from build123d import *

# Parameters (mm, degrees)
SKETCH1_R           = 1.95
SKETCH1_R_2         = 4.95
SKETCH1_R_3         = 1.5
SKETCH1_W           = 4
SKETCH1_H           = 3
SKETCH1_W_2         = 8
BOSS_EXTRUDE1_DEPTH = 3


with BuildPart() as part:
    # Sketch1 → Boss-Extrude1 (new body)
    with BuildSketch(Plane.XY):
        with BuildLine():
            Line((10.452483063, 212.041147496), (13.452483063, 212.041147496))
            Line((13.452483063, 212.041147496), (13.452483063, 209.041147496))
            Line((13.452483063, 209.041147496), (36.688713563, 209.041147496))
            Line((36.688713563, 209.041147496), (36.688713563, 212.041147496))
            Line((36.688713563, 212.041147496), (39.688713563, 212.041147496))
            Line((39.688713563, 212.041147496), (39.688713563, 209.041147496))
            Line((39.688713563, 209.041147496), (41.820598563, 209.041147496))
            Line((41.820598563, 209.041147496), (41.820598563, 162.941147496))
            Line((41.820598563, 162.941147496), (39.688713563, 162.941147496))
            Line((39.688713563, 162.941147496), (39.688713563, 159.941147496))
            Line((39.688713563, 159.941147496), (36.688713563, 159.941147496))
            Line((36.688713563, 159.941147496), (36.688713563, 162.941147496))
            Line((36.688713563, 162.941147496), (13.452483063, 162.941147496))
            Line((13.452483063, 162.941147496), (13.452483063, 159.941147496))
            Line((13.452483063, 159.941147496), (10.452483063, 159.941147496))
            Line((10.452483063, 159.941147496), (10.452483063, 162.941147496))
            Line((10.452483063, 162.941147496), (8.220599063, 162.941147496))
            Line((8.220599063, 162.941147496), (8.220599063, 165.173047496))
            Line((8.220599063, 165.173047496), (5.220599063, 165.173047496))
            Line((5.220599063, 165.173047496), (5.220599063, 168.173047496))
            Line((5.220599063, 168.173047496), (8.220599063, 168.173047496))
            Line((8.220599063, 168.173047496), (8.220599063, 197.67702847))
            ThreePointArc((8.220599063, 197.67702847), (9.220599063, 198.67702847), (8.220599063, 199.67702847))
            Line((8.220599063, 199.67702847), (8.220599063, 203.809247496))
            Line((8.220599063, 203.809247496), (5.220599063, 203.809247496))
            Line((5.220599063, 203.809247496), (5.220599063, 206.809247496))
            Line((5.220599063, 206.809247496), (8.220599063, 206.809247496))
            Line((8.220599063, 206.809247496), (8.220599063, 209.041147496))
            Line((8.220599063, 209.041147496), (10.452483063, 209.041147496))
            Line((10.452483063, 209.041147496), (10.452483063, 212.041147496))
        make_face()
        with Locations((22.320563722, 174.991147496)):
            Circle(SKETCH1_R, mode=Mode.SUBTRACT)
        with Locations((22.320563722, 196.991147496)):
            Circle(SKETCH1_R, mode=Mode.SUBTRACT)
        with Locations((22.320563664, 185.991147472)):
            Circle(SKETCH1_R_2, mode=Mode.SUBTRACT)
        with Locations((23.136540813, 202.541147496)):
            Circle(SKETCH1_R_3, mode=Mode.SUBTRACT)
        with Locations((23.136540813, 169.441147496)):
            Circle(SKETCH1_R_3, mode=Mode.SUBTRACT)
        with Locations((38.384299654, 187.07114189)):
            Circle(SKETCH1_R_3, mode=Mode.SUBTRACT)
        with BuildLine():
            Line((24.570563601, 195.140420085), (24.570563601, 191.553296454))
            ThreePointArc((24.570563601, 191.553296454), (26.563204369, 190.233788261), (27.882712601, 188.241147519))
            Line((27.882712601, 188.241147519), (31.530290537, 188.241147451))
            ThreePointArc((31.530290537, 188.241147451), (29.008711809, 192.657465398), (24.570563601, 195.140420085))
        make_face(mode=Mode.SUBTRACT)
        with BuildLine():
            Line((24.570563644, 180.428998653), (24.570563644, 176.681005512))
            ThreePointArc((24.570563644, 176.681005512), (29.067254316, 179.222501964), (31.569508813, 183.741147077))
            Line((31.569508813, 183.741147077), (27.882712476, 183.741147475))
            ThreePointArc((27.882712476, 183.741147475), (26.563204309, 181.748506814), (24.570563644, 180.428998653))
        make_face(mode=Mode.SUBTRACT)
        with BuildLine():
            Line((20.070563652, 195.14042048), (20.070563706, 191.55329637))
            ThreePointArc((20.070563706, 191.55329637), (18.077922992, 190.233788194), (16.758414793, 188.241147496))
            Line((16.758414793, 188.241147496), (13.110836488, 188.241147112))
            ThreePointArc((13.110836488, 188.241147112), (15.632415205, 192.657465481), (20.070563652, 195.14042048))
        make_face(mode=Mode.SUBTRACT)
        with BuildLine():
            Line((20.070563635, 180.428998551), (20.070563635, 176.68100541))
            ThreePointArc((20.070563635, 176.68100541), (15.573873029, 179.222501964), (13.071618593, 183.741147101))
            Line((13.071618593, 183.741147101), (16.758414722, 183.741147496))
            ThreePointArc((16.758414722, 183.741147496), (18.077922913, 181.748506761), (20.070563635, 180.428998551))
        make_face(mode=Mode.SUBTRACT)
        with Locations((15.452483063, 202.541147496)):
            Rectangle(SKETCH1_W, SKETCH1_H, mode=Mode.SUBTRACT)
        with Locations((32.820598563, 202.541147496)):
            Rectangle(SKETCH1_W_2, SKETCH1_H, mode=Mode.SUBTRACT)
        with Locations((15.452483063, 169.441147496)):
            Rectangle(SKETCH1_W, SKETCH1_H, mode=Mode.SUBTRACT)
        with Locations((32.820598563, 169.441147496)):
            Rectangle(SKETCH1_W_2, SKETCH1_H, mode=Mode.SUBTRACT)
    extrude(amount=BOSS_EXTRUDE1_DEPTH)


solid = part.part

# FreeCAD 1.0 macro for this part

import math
import FreeCAD as App
import Part
import Sketcher

V = App.Vector
Q = App.Units.Quantity


def add_polygon(sketch, points):
    """Adds a closed chain of lines whose ends are joined by coincident constraints."""
    first, n = sketch.GeometryCount, len(points)
    for a, b in zip(points, points[1:] + points[:1]):
        sketch.addGeometry(Part.LineSegment(App.Vector(*a, 0), App.Vector(*b, 0)), False)
    for i in range(n):
        sketch.addConstraint(Sketcher.Constraint("Coincident", first + i, 2, first + (i + 1) % n, 1))

doc = App.newDocument("Part")
body = doc.addObject("PartDesign::Body", "Body")

# Sketch on XY plane
sketch1 = body.newObject("Sketcher::SketchObject", "Sketch")
sketch1.AttachmentSupport = (doc.getObject("XY_Plane"), [""])
sketch1.MapMode = "FlatFace"
sketch1.addGeometry(Part.LineSegment(V(13.452483, 212.041147, 0), V(10.452483, 212.041147, 0)), False)  # 0
sketch1.addGeometry(Part.LineSegment(V(10.452483, 212.041147, 0), V(10.452483, 209.041147, 0)), False)  # 1
sketch1.addGeometry(Part.LineSegment(V(10.452483, 209.041147, 0), V(8.220599, 209.041147, 0)), False)  # 2
sketch1.addGeometry(Part.LineSegment(V(8.220599, 209.041147, 0), V(8.220599, 206.809247, 0)), False)  # 3
sketch1.addGeometry(Part.LineSegment(V(8.220599, 206.809247, 0), V(5.220599, 206.809247, 0)), False)  # 4
sketch1.addGeometry(Part.LineSegment(V(5.220599, 206.809247, 0), V(5.220599, 203.809247, 0)), False)  # 5
sketch1.addGeometry(Part.LineSegment(V(5.220599, 203.809247, 0), V(8.220599, 203.809247, 0)), False)  # 6
sketch1.addGeometry(Part.LineSegment(V(8.220599, 203.809247, 0), V(8.220599, 199.677028, 0)), False)  # 7
sketch1.addGeometry(Part.ArcOfCircle(Part.Circle(V(8.220599, 198.677028, 0), V(0, 0, 1), 1), math.radians(-90), math.radians(90)), False)  # 8
sketch1.addGeometry(Part.LineSegment(V(8.220599, 197.677028, 0), V(8.220599, 168.173047, 0)), False)  # 9
sketch1.addGeometry(Part.LineSegment(V(8.220599, 168.173047, 0), V(5.220599, 168.173047, 0)), False)  # 10
sketch1.addGeometry(Part.LineSegment(V(5.220599, 168.173047, 0), V(5.220599, 165.173047, 0)), False)  # 11
sketch1.addGeometry(Part.LineSegment(V(5.220599, 165.173047, 0), V(8.220599, 165.173047, 0)), False)  # 12
sketch1.addGeometry(Part.LineSegment(V(8.220599, 165.173047, 0), V(8.220599, 162.941147, 0)), False)  # 13
sketch1.addGeometry(Part.LineSegment(V(8.220599, 162.941147, 0), V(10.452483, 162.941147, 0)), False)  # 14
sketch1.addGeometry(Part.LineSegment(V(10.452483, 162.941147, 0), V(10.452483, 159.941147, 0)), False)  # 15
sketch1.addGeometry(Part.LineSegment(V(10.452483, 159.941147, 0), V(13.452483, 159.941147, 0)), False)  # 16
sketch1.addGeometry(Part.LineSegment(V(13.452483, 159.941147, 0), V(13.452483, 162.941147, 0)), False)  # 17
sketch1.addGeometry(Part.LineSegment(V(13.452483, 162.941147, 0), V(36.688714, 162.941147, 0)), False)  # 18
sketch1.addGeometry(Part.LineSegment(V(36.688714, 162.941147, 0), V(36.688714, 159.941147, 0)), False)  # 19
sketch1.addGeometry(Part.LineSegment(V(36.688714, 159.941147, 0), V(39.688714, 159.941147, 0)), False)  # 20
sketch1.addGeometry(Part.LineSegment(V(39.688714, 159.941147, 0), V(39.688714, 162.941147, 0)), False)  # 21
sketch1.addGeometry(Part.LineSegment(V(39.688714, 162.941147, 0), V(41.820599, 162.941147, 0)), False)  # 22
sketch1.addGeometry(Part.LineSegment(V(41.820599, 162.941147, 0), V(41.820599, 209.041147, 0)), False)  # 23
sketch1.addGeometry(Part.LineSegment(V(41.820599, 209.041147, 0), V(39.688714, 209.041147, 0)), False)  # 24
sketch1.addGeometry(Part.LineSegment(V(39.688714, 209.041147, 0), V(39.688714, 212.041147, 0)), False)  # 25
sketch1.addGeometry(Part.LineSegment(V(39.688714, 212.041147, 0), V(36.688714, 212.041147, 0)), False)  # 26
sketch1.addGeometry(Part.LineSegment(V(36.688714, 212.041147, 0), V(36.688714, 209.041147, 0)), False)  # 27
sketch1.addGeometry(Part.LineSegment(V(36.688714, 209.041147, 0), V(13.452483, 209.041147, 0)), False)  # 28
sketch1.addGeometry(Part.LineSegment(V(13.452483, 209.041147, 0), V(13.452483, 212.041147, 0)), False)  # 29
add_polygon(sketch1, [(28.820599, 167.941147), (28.820599, 170.941147), (36.820599, 170.941147), (36.820599, 167.941147)])  # lines 30-33
sketch1.addGeometry(Part.ArcOfCircle(Part.Circle(V(22.320564, 185.991147, 0), V(0, 0, 1), 6), math.radians(-67.975687), math.radians(-22.024313)), False)  # 34
sketch1.addGeometry(Part.LineSegment(V(27.882712, 183.741147, 0), V(31.569509, 183.741147, 0)), False)  # 35
sketch1.addGeometry(Part.ArcOfCircle(Part.Circle(V(22.320564, 185.910713, 0), V(0, 0, 1), 9.5), math.radians(-76.299767), math.radians(-13.201442)), False)  # 36
sketch1.addGeometry(Part.LineSegment(V(24.570564, 176.681006, 0), V(24.570564, 180.428999, 0)), False)  # 37
sketch1.addGeometry(Part.Circle(V(23.136541, 169.441147, 0), V(0, 0, 1), 1.5), False)  # 38
sketch1.addGeometry(Part.Circle(V(22.320564, 174.991147, 0), V(0, 0, 1), 1.95), False)  # 39
add_polygon(sketch1, [(13.452483, 167.941147), (13.452483, 170.941147), (17.452483, 170.941147), (17.452483, 167.941147)])  # lines 40-43
sketch1.addGeometry(Part.Circle(V(22.320564, 185.991147, 0), V(0, 0, 1), 4.95), False)  # 44
sketch1.addGeometry(Part.LineSegment(V(20.070564, 180.428999, 0), V(20.070564, 176.681005, 0)), False)  # 45
sketch1.addGeometry(Part.ArcOfCircle(Part.Circle(V(22.320564, 185.910713, 0), V(0, 0, 1), 9.5), math.radians(-166.798559), math.radians(-103.700234)), False)  # 46
sketch1.addGeometry(Part.LineSegment(V(13.071619, 183.741147, 0), V(16.758415, 183.741147, 0)), False)  # 47
sketch1.addGeometry(Part.ArcOfCircle(Part.Circle(V(22.320564, 185.991147, 0), V(0, 0, 1), 6), math.radians(-157.975688), math.radians(-112.024313)), False)  # 48
sketch1.addGeometry(Part.Circle(V(38.3843, 187.071142, 0), V(0, 0, 1), 1.5), False)  # 49
sketch1.addGeometry(Part.ArcOfCircle(Part.Circle(V(22.320564, 185.910713, 0), V(0, 0, 1), 9.5), math.radians(14.200089), math.radians(76.299767)), False)  # 50
sketch1.addGeometry(Part.LineSegment(V(31.530291, 188.241147, 0), V(27.882713, 188.241148, 0)), False)  # 51
sketch1.addGeometry(Part.ArcOfCircle(Part.Circle(V(22.320564, 185.991147, 0), V(0, 0, 1), 6), math.radians(22.024313), math.radians(67.975688)), False)  # 52
sketch1.addGeometry(Part.LineSegment(V(24.570564, 191.553296, 0), V(24.570564, 195.14042, 0)), False)  # 53
add_polygon(sketch1, [(28.820599, 201.041147), (28.820599, 204.041147), (36.820599, 204.041147), (36.820599, 201.041147)])  # lines 54-57
sketch1.addGeometry(Part.LineSegment(V(20.070564, 195.14042, 0), V(20.070564, 191.553296, 0)), False)  # 58
sketch1.addGeometry(Part.ArcOfCircle(Part.Circle(V(22.320564, 185.991147, 0), V(0, 0, 1), 6), math.radians(112.024312), math.radians(157.975687)), False)  # 59
sketch1.addGeometry(Part.LineSegment(V(16.758415, 188.241147, 0), V(13.110836, 188.241147, 0)), False)  # 60
sketch1.addGeometry(Part.ArcOfCircle(Part.Circle(V(22.320564, 185.910713, 0), V(0, 0, 1), 9.5), math.radians(103.700234), math.radians(165.799914)), False)  # 61
sketch1.addGeometry(Part.Circle(V(22.320564, 196.991147, 0), V(0, 0, 1), 1.95), False)  # 62
sketch1.addGeometry(Part.Circle(V(23.136541, 202.541147, 0), V(0, 0, 1), 1.5), False)  # 63
add_polygon(sketch1, [(13.452483, 201.041147), (13.452483, 204.041147), (17.452483, 204.041147), (17.452483, 201.041147)])  # lines 64-67
sketch1.addConstraint(Sketcher.Constraint("Coincident", 0, 2, 1, 1))
sketch1.addConstraint(Sketcher.Constraint("Coincident", 1, 2, 2, 1))
sketch1.addConstraint(Sketcher.Constraint("Coincident", 2, 2, 3, 1))
sketch1.addConstraint(Sketcher.Constraint("Coincident", 3, 2, 4, 1))
sketch1.addConstraint(Sketcher.Constraint("Coincident", 4, 2, 5, 1))
sketch1.addConstraint(Sketcher.Constraint("Coincident", 5, 2, 6, 1))
sketch1.addConstraint(Sketcher.Constraint("Coincident", 6, 2, 7, 1))
sketch1.addConstraint(Sketcher.Constraint("Coincident", 7, 2, 8, 2))
sketch1.addConstraint(Sketcher.Constraint("Coincident", 8, 1, 9, 1))
sketch1.addConstraint(Sketcher.Constraint("Coincident", 9, 2, 10, 1))
sketch1.addConstraint(Sketcher.Constraint("Coincident", 10, 2, 11, 1))
sketch1.addConstraint(Sketcher.Constraint("Coincident", 11, 2, 12, 1))
sketch1.addConstraint(Sketcher.Constraint("Coincident", 12, 2, 13, 1))
sketch1.addConstraint(Sketcher.Constraint("Coincident", 13, 2, 14, 1))
sketch1.addConstraint(Sketcher.Constraint("Coincident", 14, 2, 15, 1))
sketch1.addConstraint(Sketcher.Constraint("Coincident", 15, 2, 16, 1))
sketch1.addConstraint(Sketcher.Constraint("Coincident", 16, 2, 17, 1))
sketch1.addConstraint(Sketcher.Constraint("Coincident", 17, 2, 18, 1))
sketch1.addConstraint(Sketcher.Constraint("Coincident", 18, 2, 19, 1))
sketch1.addConstraint(Sketcher.Constraint("Coincident", 19, 2, 20, 1))
sketch1.addConstraint(Sketcher.Constraint("Coincident", 20, 2, 21, 1))
sketch1.addConstraint(Sketcher.Constraint("Coincident", 21, 2, 22, 1))
sketch1.addConstraint(Sketcher.Constraint("Coincident", 22, 2, 23, 1))
sketch1.addConstraint(Sketcher.Constraint("Coincident", 23, 2, 24, 1))
sketch1.addConstraint(Sketcher.Constraint("Coincident", 24, 2, 25, 1))
sketch1.addConstraint(Sketcher.Constraint("Coincident", 25, 2, 26, 1))
sketch1.addConstraint(Sketcher.Constraint("Coincident", 26, 2, 27, 1))
sketch1.addConstraint(Sketcher.Constraint("Coincident", 27, 2, 28, 1))
sketch1.addConstraint(Sketcher.Constraint("Coincident", 28, 2, 29, 1))
sketch1.addConstraint(Sketcher.Constraint("Coincident", 29, 2, 0, 1))
sketch1.addConstraint(Sketcher.Constraint("Coincident", 34, 2, 35, 1))
sketch1.addConstraint(Sketcher.Constraint("Coincident", 35, 2, 36, 2))
sketch1.addConstraint(Sketcher.Constraint("Coincident", 36, 1, 37, 1))
sketch1.addConstraint(Sketcher.Constraint("Coincident", 37, 2, 34, 1))
sketch1.addConstraint(Sketcher.Constraint("Coincident", 45, 2, 46, 2))
sketch1.addConstraint(Sketcher.Constraint("Coincident", 46, 1, 47, 1))
sketch1.addConstraint(Sketcher.Constraint("Coincident", 47, 2, 48, 1))
sketch1.addConstraint(Sketcher.Constraint("Coincident", 48, 2, 45, 1))
sketch1.addConstraint(Sketcher.Constraint("Coincident", 50, 1, 51, 1))
sketch1.addConstraint(Sketcher.Constraint("Coincident", 51, 2, 52, 1))
sketch1.addConstraint(Sketcher.Constraint("Coincident", 52, 2, 53, 1))
sketch1.addConstraint(Sketcher.Constraint("Coincident", 53, 2, 50, 2))
sketch1.addConstraint(Sketcher.Constraint("Coincident", 58, 2, 59, 1))
sketch1.addConstraint(Sketcher.Constraint("Coincident", 59, 2, 60, 1))
sketch1.addConstraint(Sketcher.Constraint("Coincident", 60, 2, 61, 2))
sketch1.addConstraint(Sketcher.Constraint("Coincident", 61, 1, 58, 1))
sketch1.addConstraint(Sketcher.Constraint("Horizontal", 0))
sketch1.addConstraint(Sketcher.Constraint("Vertical", 1))
sketch1.addConstraint(Sketcher.Constraint("Horizontal", 2))
sketch1.addConstraint(Sketcher.Constraint("Vertical", 3))
sketch1.addConstraint(Sketcher.Constraint("Horizontal", 4))
sketch1.addConstraint(Sketcher.Constraint("Vertical", 5))
sketch1.addConstraint(Sketcher.Constraint("Horizontal", 6))
sketch1.addConstraint(Sketcher.Constraint("Vertical", 7))
sketch1.addConstraint(Sketcher.Constraint("Vertical", 9))
sketch1.addConstraint(Sketcher.Constraint("Horizontal", 10))
sketch1.addConstraint(Sketcher.Constraint("Vertical", 11))
sketch1.addConstraint(Sketcher.Constraint("Horizontal", 12))
sketch1.addConstraint(Sketcher.Constraint("Vertical", 13))
sketch1.addConstraint(Sketcher.Constraint("Horizontal", 14))
sketch1.addConstraint(Sketcher.Constraint("Vertical", 15))
sketch1.addConstraint(Sketcher.Constraint("Horizontal", 16))
sketch1.addConstraint(Sketcher.Constraint("Vertical", 17))
sketch1.addConstraint(Sketcher.Constraint("Horizontal", 18))
sketch1.addConstraint(Sketcher.Constraint("Vertical", 19))
sketch1.addConstraint(Sketcher.Constraint("Horizontal", 20))
sketch1.addConstraint(Sketcher.Constraint("Vertical", 21))
sketch1.addConstraint(Sketcher.Constraint("Horizontal", 22))
sketch1.addConstraint(Sketcher.Constraint("Vertical", 23))
sketch1.addConstraint(Sketcher.Constraint("Horizontal", 24))
sketch1.addConstraint(Sketcher.Constraint("Vertical", 25))
sketch1.addConstraint(Sketcher.Constraint("Horizontal", 26))
sketch1.addConstraint(Sketcher.Constraint("Vertical", 27))
sketch1.addConstraint(Sketcher.Constraint("Horizontal", 28))
sketch1.addConstraint(Sketcher.Constraint("Vertical", 29))
sketch1.addConstraint(Sketcher.Constraint("Vertical", 30))
sketch1.addConstraint(Sketcher.Constraint("Horizontal", 31))
sketch1.addConstraint(Sketcher.Constraint("Vertical", 32))
sketch1.addConstraint(Sketcher.Constraint("Horizontal", 33))
sketch1.addConstraint(Sketcher.Constraint("Horizontal", 35))
sketch1.addConstraint(Sketcher.Constraint("Vertical", 37))
sketch1.addConstraint(Sketcher.Constraint("Vertical", 40))
sketch1.addConstraint(Sketcher.Constraint("Horizontal", 41))
sketch1.addConstraint(Sketcher.Constraint("Vertical", 42))
sketch1.addConstraint(Sketcher.Constraint("Horizontal", 43))
sketch1.addConstraint(Sketcher.Constraint("Vertical", 45))
sketch1.addConstraint(Sketcher.Constraint("Horizontal", 47))
sketch1.addConstraint(Sketcher.Constraint("Horizontal", 51))
sketch1.addConstraint(Sketcher.Constraint("Vertical", 53))
sketch1.addConstraint(Sketcher.Constraint("Vertical", 54))
sketch1.addConstraint(Sketcher.Constraint("Horizontal", 55))
sketch1.addConstraint(Sketcher.Constraint("Vertical", 56))
sketch1.addConstraint(Sketcher.Constraint("Horizontal", 57))
sketch1.addConstraint(Sketcher.Constraint("Vertical", 58))
sketch1.addConstraint(Sketcher.Constraint("Horizontal", 60))
sketch1.addConstraint(Sketcher.Constraint("Vertical", 64))
sketch1.addConstraint(Sketcher.Constraint("Horizontal", 65))
sketch1.addConstraint(Sketcher.Constraint("Vertical", 66))
sketch1.addConstraint(Sketcher.Constraint("Horizontal", 67))
sketch1.addConstraint(Sketcher.Constraint("Coincident", 44, 3, 34, 3))
sketch1.addConstraint(Sketcher.Constraint("Coincident", 46, 3, 36, 3))
sketch1.addConstraint(Sketcher.Constraint("Coincident", 48, 3, 34, 3))
sketch1.addConstraint(Sketcher.Constraint("Coincident", 50, 3, 36, 3))
sketch1.addConstraint(Sketcher.Constraint("Coincident", 52, 3, 34, 3))
sketch1.addConstraint(Sketcher.Constraint("Coincident", 59, 3, 34, 3))
sketch1.addConstraint(Sketcher.Constraint("Coincident", 61, 3, 36, 3))
sketch1.addConstraint(Sketcher.Constraint("Equal", 36, 46))
sketch1.addConstraint(Sketcher.Constraint("Equal", 34, 48))
sketch1.addConstraint(Sketcher.Constraint("Equal", 38, 49))
sketch1.addConstraint(Sketcher.Constraint("Equal", 46, 50))
sketch1.addConstraint(Sketcher.Constraint("Equal", 48, 52))
sketch1.addConstraint(Sketcher.Constraint("Equal", 52, 59))
sketch1.addConstraint(Sketcher.Constraint("Equal", 50, 61))
sketch1.addConstraint(Sketcher.Constraint("Equal", 39, 62))
sketch1.addConstraint(Sketcher.Constraint("Equal", 49, 63))
sketch1.addConstraint(Sketcher.Constraint("Horizontal", 14, 2, 17, 2))
sketch1.addConstraint(Sketcher.Constraint("Horizontal", 16, 2, 19, 2))
sketch1.addConstraint(Sketcher.Constraint("Horizontal", 18, 2, 21, 2))
sketch1.addConstraint(Sketcher.Constraint("Horizontal", 2, 2, 23, 2))
sketch1.addConstraint(Sketcher.Constraint("Horizontal", 0, 2, 25, 2))
sketch1.addConstraint(Sketcher.Constraint("Horizontal", 24, 2, 27, 2))
sketch1.addConstraint(Sketcher.Constraint("Horizontal", 31, 2, 40, 2))
sketch1.addConstraint(Sketcher.Constraint("Horizontal", 33, 2, 42, 2))
sketch1.addConstraint(Sketcher.Constraint("Horizontal", 36, 1, 45, 2))
sketch1.addConstraint(Sketcher.Constraint("Horizontal", 35, 2, 46, 1))
sketch1.addConstraint(Sketcher.Constraint("Horizontal", 37, 2, 48, 2))
sketch1.addConstraint(Sketcher.Constraint("Horizontal", 52, 2, 58, 2))
sketch1.addConstraint(Sketcher.Constraint("Horizontal", 51, 2, 59, 2))
sketch1.addConstraint(Sketcher.Constraint("Horizontal", 55, 2, 64, 2))
sketch1.addConstraint(Sketcher.Constraint("Horizontal", 57, 2, 66, 2))
sketch1.addConstraint(Sketcher.Constraint("Vertical", 36, 3, 39, 3))
sketch1.addConstraint(Sketcher.Constraint("Vertical", 61, 3, 62, 3))
sketch1.addConstraint(Sketcher.Constraint("Vertical", 38, 3, 63, 3))
sketch1.addConstraint(Sketcher.Constraint("Vertical", 8, 3, 2, 2))
sketch1.addConstraint(Sketcher.Constraint("Vertical", 3, 2, 6, 2))
sketch1.addConstraint(Sketcher.Constraint("Vertical", 7, 2, 8, 1))
sketch1.addConstraint(Sketcher.Constraint("Vertical", 5, 2, 10, 2))
sketch1.addConstraint(Sketcher.Constraint("Vertical", 9, 2, 12, 2))
sketch1.addConstraint(Sketcher.Constraint("Vertical", 1, 2, 14, 2))
sketch1.addConstraint(Sketcher.Constraint("Vertical", 21, 2, 24, 2))
sketch1.addConstraint(Sketcher.Constraint("Vertical", 19, 2, 26, 2))
sketch1.addConstraint(Sketcher.Constraint("Vertical", 17, 2, 28, 2))
sketch1.addConstraint(Sketcher.Constraint("Vertical", 29, 2, 40, 2))
sketch1.addConstraint(Sketcher.Constraint("Vertical", 34, 2, 51, 2))
sketch1.addConstraint(Sketcher.Constraint("Vertical", 37, 2, 52, 2))
sketch1.addConstraint(Sketcher.Constraint("Vertical", 33, 2, 54, 2))
sketch1.addConstraint(Sketcher.Constraint("Vertical", 32, 2, 55, 2))
sketch1.addConstraint(Sketcher.Constraint("Vertical", 43, 2, 64, 2))
sketch1.addConstraint(Sketcher.Constraint("Vertical", 42, 2, 65, 2))
sketch1.addConstraint(Sketcher.Constraint("Equal", 0, 4))
sketch1.addConstraint(Sketcher.Constraint("Equal", 16, 20))
sketch1.addConstraint(Sketcher.Constraint("Equal", 26, 1))
sketch1.addConstraint(Sketcher.Constraint("Equal", 1, 5))
sketch1.addConstraint(Sketcher.Constraint("Equal", 5, 11))
sketch1.addConstraint(Sketcher.Constraint("Equal", 3, 13))
sketch1.addConstraint(Sketcher.Constraint("Equal", 11, 15))
sketch1.addConstraint(Sketcher.Constraint("Equal", 29, 30))
sketch1.addConstraint(Sketcher.Constraint("Equal", 42, 54))
sketch1.addConstraint(Sketcher.Constraint("Diameter", 38, Q("3 mm")))
sketch1.addConstraint(Sketcher.Constraint("Radius", 8, Q("1 mm")))
sketch1.addConstraint(Sketcher.Constraint("Radius", 34, Q("6 mm")))
sketch1.addConstraint(Sketcher.Constraint("Diameter", 39, Q("3.9 mm")))
sketch1.addConstraint(Sketcher.Constraint("Diameter", 44, Q("9.9 mm")))
sketch1.addConstraint(Sketcher.Constraint("Radius", 36, Q("9.5 mm")))
sketch1.addConstraint(Sketcher.Constraint("DistanceX", 0, 2, 0, 1, Q("3 mm")))
sketch1.addConstraint(Sketcher.Constraint("DistanceX", 31, 1, 31, 2, Q("8 mm")))
sketch1.addConstraint(Sketcher.Constraint("DistanceX", 41, 1, 41, 2, Q("4 mm")))
sketch1.addConstraint(Sketcher.Constraint("DistanceY", 23, 1, 23, 2, Q("46.1 mm")))
sketch1.addConstraint(Sketcher.Constraint("DistanceY", 3, 2, 3, 1, Q("2.2319 mm")))
sketch1.addConstraint(Sketcher.Constraint("DistanceY", -1, 1, 37, 2, Q("180.428999 mm")))
sketch1.addConstraint(Sketcher.Constraint("DistanceX", 18, 1, 18, 2, Q("23.23623 mm")))
sketch1.addConstraint(Sketcher.Constraint("DistanceX", 60, 2, 60, 1, Q("3.647578 mm")))
sketch1.addConstraint(Sketcher.Constraint("DistanceY", 7, 2, 7, 1, Q("4.132219 mm")))
sketch1.addConstraint(Sketcher.Constraint("DistanceX", -1, 1, 8, 3, Q("8.220599 mm")))
sketch1.addConstraint(Sketcher.Constraint("DistanceX", -1, 1, 49, 3, Q("38.3843 mm")))
sketch1.addConstraint(Sketcher.Constraint("DistanceX", -1, 1, 22, 2, Q("41.820599 mm")))
sketch1.addConstraint(Sketcher.Constraint("DistanceX", -1, 1, 30, 2, Q("28.820599 mm")))
sketch1.addConstraint(Sketcher.Constraint("DistanceX", 2, 2, 2, 1, Q("2.231884 mm")))
sketch1.addConstraint(Sketcher.Constraint("DistanceX", 35, 1, 35, 2, Q("3.686796 mm")))
sketch1.addConstraint(Sketcher.Constraint("DistanceY", 37, 1, 37, 2, Q("3.747993 mm")))
sketch1.addConstraint(Sketcher.Constraint("DistanceY", -1, 1, 8, 3, Q("198.677028 mm")))
sketch1.addConstraint(Sketcher.Constraint("DistanceX", -1, 1, 38, 3, Q("23.136541 mm")))
sketch1.addConstraint(Sketcher.Constraint("DistanceY", -1, 1, 49, 3, Q("187.071142 mm")))
sketch1.addConstraint(Sketcher.Constraint("DistanceX", -1, 1, 35, 2, Q("31.569509 mm")))
sketch1.addConstraint(Sketcher.Constraint("DistanceY", -1, 1, 38, 3, Q("169.441147 mm")))
sketch1.addConstraint(Sketcher.Constraint("DistanceY", -1, 1, 39, 3, Q("174.991147 mm")))
sketch1.addConstraint(Sketcher.Constraint("DistanceY", -1, 1, 62, 3, Q("196.991147 mm")))
sketch1.addConstraint(Sketcher.Constraint("DistanceY", -1, 1, 63, 3, Q("202.541147 mm")))
sketch1.addConstraint(Sketcher.Constraint("DistanceY", -1, 1, 30, 2, Q("170.941147 mm")))
sketch1.addConstraint(Sketcher.Constraint("DistanceY", -1, 1, 54, 2, Q("204.041147 mm")))
pad1 = body.newObject("PartDesign::Pad", "Pad")
pad1.Profile = sketch1
pad1.Length = 3

doc.recompute()
